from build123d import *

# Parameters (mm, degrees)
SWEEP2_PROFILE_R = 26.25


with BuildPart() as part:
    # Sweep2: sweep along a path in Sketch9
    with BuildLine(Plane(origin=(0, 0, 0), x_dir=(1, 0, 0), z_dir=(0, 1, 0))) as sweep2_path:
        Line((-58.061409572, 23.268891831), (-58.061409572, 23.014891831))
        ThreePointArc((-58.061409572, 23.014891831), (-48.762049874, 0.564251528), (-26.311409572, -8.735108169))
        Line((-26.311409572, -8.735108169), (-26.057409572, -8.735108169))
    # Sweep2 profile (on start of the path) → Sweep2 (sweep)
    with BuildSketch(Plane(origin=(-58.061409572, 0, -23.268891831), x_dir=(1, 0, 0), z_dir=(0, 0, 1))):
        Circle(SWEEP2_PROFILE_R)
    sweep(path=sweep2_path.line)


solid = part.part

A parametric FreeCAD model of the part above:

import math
import FreeCAD as App
import Part
import Sketcher
Q = App.Units.Quantity

doc = App.newDocument("Part")
body = doc.addObject("PartDesign::Body", "Body")

sketch1 = body.newObject("Sketcher::SketchObject", "Sketch")
sketch1.AttachmentSupport = (doc.getObject("XY_Plane"), [""])
sketch1.MapMode = "FlatFace"
sketch1.AttachmentOffset = App.Placement(App.Vector(0, 0, -23.268892), App.Rotation())
sketch1.addGeometry(Part.Circle(App.Vector(-58.06141, 0, 0), App.Vector(0, 0, 1), 26.25), False)
sketch1.addConstraint([
    Sketcher.Constraint("PointOnObject", 0, 3, -1),
    Sketcher.Constraint("Diameter", 0, Q("52.5 mm")),
    Sketcher.Constraint("DistanceX", 0, 3, -1, 1, Q("58.06141 mm")),
])

sketch2 = body.newObject("Sketcher::SketchObject", "Sketch001")
sketch2.AttachmentSupport = (doc.getObject("XZ_Plane"), [""])
sketch2.MapMode = "FlatFace"
sketch2.addGeometry([
    Part.LineSegment(App.Vector(-58.06141, -23.268892, 0), App.Vector(-58.06141, -23.014892, 0)),
    Part.ArcOfCircle(Part.Circle(App.Vector(-26.31141, -23.014892, 0), App.Vector(0, 0, 1), 31.75), math.radians(90), math.radians(180)),
    Part.LineSegment(App.Vector(-26.31141, 8.735108, 0), App.Vector(-26.05741, 8.735108, 0)),
], False)
sketch2.addConstraint([
    Sketcher.Constraint("Tangent", 0, 2, 1, 2),
    Sketcher.Constraint("Tangent", 1, 1, 2, 1),
    Sketcher.Constraint("Vertical", 0),
    Sketcher.Constraint("Horizontal", 2),
    Sketcher.Constraint("Equal", 2, 0),
    Sketcher.Constraint("Radius", 1, Q("1.25 in")),
    Sketcher.Constraint("DistanceX", 2, 1, 2, 2, Q("0.01 in")),
    Sketcher.Constraint("DistanceX", 1, 3, -1, 1, Q("26.31141 mm")),
    Sketcher.Constraint("DistanceY", 1, 3, -1, 1, Q("23.014892 mm")),
])
doc.recompute()

additivepipe = body.newObject("PartDesign::AdditivePipe", "AdditivePipe")
additivepipe.Profile = sketch1
additivepipe.Spine = (sketch2, ["Edge1", "Edge2", "Edge3"])

doc.recompute()
